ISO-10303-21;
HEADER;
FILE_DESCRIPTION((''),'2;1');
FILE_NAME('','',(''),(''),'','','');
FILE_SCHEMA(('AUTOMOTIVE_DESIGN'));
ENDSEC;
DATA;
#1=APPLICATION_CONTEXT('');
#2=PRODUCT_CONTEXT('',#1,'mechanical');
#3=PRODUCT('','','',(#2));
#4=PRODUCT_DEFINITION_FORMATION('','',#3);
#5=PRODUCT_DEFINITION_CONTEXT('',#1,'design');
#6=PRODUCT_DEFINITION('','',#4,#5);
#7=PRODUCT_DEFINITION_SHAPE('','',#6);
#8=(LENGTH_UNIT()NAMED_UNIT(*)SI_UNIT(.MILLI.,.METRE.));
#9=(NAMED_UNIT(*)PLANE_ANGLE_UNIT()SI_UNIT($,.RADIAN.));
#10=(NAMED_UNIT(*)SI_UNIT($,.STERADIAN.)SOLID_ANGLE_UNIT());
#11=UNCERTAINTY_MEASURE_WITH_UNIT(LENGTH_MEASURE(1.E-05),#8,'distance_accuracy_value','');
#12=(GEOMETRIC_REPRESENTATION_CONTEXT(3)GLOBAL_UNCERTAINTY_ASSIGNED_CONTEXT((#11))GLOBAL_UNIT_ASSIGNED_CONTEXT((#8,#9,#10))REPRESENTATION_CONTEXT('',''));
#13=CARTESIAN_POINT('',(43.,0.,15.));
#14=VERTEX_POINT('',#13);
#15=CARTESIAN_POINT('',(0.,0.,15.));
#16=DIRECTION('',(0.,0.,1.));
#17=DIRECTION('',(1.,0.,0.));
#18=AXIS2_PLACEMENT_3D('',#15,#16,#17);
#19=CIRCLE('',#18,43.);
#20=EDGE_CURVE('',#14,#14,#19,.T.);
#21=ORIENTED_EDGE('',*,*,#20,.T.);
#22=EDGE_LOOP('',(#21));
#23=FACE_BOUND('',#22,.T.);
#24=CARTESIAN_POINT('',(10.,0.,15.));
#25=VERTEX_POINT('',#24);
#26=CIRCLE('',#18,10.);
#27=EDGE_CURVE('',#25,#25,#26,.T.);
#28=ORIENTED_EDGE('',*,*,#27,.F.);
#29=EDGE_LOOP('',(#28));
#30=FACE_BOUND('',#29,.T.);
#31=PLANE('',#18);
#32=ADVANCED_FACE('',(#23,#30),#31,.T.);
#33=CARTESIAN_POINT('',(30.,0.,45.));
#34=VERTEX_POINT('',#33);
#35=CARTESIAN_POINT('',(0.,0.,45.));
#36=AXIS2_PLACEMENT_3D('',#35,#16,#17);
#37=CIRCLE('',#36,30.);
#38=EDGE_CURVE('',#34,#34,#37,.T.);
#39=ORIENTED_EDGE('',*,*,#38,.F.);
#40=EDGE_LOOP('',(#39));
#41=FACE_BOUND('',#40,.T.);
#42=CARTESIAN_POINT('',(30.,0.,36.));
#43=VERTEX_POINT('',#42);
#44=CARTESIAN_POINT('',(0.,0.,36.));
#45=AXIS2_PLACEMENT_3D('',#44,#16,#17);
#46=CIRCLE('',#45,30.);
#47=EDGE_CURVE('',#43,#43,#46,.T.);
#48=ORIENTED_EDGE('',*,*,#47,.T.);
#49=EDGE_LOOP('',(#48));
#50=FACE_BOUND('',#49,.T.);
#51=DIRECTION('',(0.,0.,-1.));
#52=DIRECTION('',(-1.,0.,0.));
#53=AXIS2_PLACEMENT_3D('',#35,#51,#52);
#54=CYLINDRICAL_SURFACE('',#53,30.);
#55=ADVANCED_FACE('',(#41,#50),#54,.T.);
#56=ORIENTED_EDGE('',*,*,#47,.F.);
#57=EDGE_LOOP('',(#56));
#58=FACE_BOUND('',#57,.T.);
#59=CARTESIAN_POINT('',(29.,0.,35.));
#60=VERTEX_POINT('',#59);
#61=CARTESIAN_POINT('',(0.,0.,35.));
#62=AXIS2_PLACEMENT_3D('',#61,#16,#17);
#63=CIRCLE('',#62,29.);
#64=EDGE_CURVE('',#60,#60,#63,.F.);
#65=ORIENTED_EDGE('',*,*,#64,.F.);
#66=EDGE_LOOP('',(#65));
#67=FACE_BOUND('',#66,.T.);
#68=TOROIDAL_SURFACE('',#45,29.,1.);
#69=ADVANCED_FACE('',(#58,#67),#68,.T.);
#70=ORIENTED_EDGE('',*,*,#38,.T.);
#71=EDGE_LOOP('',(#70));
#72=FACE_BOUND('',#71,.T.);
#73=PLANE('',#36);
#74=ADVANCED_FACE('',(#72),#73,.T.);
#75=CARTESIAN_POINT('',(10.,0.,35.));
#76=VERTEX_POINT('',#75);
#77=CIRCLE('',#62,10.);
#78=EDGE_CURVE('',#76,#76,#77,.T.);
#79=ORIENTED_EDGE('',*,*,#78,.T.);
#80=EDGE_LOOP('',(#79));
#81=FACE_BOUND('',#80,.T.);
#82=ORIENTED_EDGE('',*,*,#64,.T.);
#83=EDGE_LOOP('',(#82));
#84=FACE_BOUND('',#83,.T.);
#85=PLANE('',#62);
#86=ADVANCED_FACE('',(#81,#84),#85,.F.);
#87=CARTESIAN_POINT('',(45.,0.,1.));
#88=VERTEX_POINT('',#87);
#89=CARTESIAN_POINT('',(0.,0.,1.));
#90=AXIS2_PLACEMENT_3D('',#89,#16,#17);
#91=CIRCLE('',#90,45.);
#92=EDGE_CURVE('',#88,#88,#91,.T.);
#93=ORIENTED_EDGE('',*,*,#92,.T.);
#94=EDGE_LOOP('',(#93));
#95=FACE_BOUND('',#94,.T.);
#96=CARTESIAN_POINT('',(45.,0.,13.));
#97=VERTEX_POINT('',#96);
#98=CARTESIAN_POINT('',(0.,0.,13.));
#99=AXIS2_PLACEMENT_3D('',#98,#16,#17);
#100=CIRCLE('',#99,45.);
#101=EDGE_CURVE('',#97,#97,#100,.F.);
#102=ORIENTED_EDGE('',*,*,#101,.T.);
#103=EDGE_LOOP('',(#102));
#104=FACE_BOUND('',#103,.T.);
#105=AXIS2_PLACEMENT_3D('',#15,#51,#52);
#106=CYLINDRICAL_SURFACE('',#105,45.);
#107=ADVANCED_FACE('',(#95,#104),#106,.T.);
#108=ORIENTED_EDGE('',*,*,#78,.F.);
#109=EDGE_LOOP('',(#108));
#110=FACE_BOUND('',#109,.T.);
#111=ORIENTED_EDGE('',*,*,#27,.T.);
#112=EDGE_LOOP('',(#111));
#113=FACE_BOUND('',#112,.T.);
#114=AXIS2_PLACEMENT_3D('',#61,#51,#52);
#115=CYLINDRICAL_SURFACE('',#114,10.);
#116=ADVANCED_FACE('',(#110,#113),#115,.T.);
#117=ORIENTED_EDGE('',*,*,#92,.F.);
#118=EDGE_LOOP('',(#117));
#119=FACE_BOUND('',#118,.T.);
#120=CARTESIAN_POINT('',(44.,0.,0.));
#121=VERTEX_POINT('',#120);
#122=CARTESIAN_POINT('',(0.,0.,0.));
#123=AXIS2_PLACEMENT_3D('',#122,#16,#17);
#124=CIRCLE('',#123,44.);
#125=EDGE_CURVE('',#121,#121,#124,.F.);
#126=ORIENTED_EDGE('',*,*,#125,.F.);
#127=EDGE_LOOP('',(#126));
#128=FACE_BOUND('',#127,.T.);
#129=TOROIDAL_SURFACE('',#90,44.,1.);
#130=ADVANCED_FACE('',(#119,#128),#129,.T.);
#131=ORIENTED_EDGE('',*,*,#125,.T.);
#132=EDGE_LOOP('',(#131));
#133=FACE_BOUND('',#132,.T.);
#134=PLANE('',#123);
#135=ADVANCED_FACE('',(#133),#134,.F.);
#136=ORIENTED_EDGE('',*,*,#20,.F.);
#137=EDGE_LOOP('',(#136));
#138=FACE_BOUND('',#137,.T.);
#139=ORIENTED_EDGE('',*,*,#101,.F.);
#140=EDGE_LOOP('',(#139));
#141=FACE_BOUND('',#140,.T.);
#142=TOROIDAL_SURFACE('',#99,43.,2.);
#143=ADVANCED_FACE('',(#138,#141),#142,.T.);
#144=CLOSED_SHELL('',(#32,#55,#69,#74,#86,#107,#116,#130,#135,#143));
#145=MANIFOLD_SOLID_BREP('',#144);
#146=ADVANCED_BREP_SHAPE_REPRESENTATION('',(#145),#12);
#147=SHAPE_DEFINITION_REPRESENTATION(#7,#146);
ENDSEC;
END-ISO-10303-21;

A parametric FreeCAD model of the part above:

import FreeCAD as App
import Part
import Sketcher
from FreeCAD import Vector
Q = App.Units.Quantity


def edges_at(feature, points):
    """Names of the edges that pass closest to the given points."""
    edges = feature.Shape.Edges
    near = lambda p: min(range(len(edges)), key=lambda i: edges[i].distToShape(Part.Vertex(*p))[0])
    return sorted({f"Edge{near(p) + 1}" for p in points})

doc = App.newDocument("Part")
params = doc.addObject("Spreadsheet::Sheet", "Params")
for row, (alias, value) in enumerate([
    ("sketch1_diameter", "90 mm"),
    ("pad1_length", "15 mm"),
    ("sketch2_diameter", "20 mm"),
    ("pad2_length", "20 mm"),
    ("sketch3_diameter", "60 mm"),
    ("pad3_length", "10 mm"),
    ("fillet_radius", "2 mm"),
    ("fillet2_radius", "1 mm"),
    ("fillet3_radius", "1 mm"),
], start=1):
    params.set(f"A{row}", alias)
    params.set(f"B{row}", "=" + value)
    params.setAlias(f"B{row}", alias)

body = doc.addObject("PartDesign::Body", "Body")

# Sketch on XY plane
sketch1 = body.newObject("Sketcher::SketchObject", "Sketch")
sketch1.AttachmentSupport = (doc.getObject("XY_Plane"), [""])
sketch1.MapMode = "FlatFace"
sketch1.addGeometry(Part.Circle(Vector(0, 0, 0), Vector(0, 0, 1), 45), False)
sketch1.addConstraint([
    Sketcher.Constraint("Coincident", 0, 3, -1, 1),
    Sketcher.Constraint("Diameter", 0, Q("90 mm")),
])
sketch1.setExpression("Constraints[1]", "Params.sketch1_diameter")
pad1 = body.newObject("PartDesign::Pad", "Pad")
pad1.Profile = sketch1
pad1.setExpression("Length", "Params.pad1_length")

# Sketch on XY plane
sketch2 = body.newObject("Sketcher::SketchObject", "Sketch001")
sketch2.AttachmentSupport = (doc.getObject("XY_Plane"), [""])
sketch2.MapMode = "FlatFace"
sketch2.AttachmentOffset = App.Placement(Vector(0, 0, 15), App.Rotation())
sketch2.addGeometry(Part.Circle(Vector(0, 0, 0), Vector(0, 0, 1), 10), False)
sketch2.addConstraint([
    Sketcher.Constraint("Coincident", 0, 3, -1, 1),
    Sketcher.Constraint("Diameter", 0, Q("20 mm")),
])
sketch2.setExpression("Constraints[1]", "Params.sketch2_diameter")
pad2 = body.newObject("PartDesign::Pad", "Pad001")
pad2.Profile = sketch2
pad2.setExpression("Length", "Params.pad2_length")

# Sketch on XY plane
sketch3 = body.newObject("Sketcher::SketchObject", "Sketch002")
sketch3.AttachmentSupport = (doc.getObject("XY_Plane"), [""])
sketch3.MapMode = "FlatFace"
sketch3.AttachmentOffset = App.Placement(Vector(0, 0, 35), App.Rotation())
sketch3.addGeometry(Part.Circle(Vector(0, 0, 0), Vector(0, 0, 1), 30), False)
sketch3.addConstraint([
    Sketcher.Constraint("Coincident", 0, 3, -1, 1),
    Sketcher.Constraint("Diameter", 0, Q("60 mm")),
])
sketch3.setExpression("Constraints[1]", "Params.sketch3_diameter")
pad3 = body.newObject("PartDesign::Pad", "Pad002")
pad3.Profile = sketch3
pad3.setExpression("Length", "Params.pad3_length")
doc.recompute()

fillet = body.newObject("PartDesign::Fillet", "Fillet")
fillet.Base = (pad3, edges_at(pad3, [(-45, 0, 15)]))
fillet.setExpression("Radius", "Params.fillet_radius")
doc.recompute()

fillet2 = body.newObject("PartDesign::Fillet", "Fillet001")
fillet2.Base = (fillet, edges_at(fillet, [(-30, 0, 35)]))
fillet2.setExpression("Radius", "Params.fillet2_radius")
doc.recompute()

fillet3 = body.newObject("PartDesign::Fillet", "Fillet002")
fillet3.Base = (fillet2, edges_at(fillet2, [(-45, 0, 0)]))
fillet3.setExpression("Radius", "Params.fillet3_radius")

doc.recompute()
